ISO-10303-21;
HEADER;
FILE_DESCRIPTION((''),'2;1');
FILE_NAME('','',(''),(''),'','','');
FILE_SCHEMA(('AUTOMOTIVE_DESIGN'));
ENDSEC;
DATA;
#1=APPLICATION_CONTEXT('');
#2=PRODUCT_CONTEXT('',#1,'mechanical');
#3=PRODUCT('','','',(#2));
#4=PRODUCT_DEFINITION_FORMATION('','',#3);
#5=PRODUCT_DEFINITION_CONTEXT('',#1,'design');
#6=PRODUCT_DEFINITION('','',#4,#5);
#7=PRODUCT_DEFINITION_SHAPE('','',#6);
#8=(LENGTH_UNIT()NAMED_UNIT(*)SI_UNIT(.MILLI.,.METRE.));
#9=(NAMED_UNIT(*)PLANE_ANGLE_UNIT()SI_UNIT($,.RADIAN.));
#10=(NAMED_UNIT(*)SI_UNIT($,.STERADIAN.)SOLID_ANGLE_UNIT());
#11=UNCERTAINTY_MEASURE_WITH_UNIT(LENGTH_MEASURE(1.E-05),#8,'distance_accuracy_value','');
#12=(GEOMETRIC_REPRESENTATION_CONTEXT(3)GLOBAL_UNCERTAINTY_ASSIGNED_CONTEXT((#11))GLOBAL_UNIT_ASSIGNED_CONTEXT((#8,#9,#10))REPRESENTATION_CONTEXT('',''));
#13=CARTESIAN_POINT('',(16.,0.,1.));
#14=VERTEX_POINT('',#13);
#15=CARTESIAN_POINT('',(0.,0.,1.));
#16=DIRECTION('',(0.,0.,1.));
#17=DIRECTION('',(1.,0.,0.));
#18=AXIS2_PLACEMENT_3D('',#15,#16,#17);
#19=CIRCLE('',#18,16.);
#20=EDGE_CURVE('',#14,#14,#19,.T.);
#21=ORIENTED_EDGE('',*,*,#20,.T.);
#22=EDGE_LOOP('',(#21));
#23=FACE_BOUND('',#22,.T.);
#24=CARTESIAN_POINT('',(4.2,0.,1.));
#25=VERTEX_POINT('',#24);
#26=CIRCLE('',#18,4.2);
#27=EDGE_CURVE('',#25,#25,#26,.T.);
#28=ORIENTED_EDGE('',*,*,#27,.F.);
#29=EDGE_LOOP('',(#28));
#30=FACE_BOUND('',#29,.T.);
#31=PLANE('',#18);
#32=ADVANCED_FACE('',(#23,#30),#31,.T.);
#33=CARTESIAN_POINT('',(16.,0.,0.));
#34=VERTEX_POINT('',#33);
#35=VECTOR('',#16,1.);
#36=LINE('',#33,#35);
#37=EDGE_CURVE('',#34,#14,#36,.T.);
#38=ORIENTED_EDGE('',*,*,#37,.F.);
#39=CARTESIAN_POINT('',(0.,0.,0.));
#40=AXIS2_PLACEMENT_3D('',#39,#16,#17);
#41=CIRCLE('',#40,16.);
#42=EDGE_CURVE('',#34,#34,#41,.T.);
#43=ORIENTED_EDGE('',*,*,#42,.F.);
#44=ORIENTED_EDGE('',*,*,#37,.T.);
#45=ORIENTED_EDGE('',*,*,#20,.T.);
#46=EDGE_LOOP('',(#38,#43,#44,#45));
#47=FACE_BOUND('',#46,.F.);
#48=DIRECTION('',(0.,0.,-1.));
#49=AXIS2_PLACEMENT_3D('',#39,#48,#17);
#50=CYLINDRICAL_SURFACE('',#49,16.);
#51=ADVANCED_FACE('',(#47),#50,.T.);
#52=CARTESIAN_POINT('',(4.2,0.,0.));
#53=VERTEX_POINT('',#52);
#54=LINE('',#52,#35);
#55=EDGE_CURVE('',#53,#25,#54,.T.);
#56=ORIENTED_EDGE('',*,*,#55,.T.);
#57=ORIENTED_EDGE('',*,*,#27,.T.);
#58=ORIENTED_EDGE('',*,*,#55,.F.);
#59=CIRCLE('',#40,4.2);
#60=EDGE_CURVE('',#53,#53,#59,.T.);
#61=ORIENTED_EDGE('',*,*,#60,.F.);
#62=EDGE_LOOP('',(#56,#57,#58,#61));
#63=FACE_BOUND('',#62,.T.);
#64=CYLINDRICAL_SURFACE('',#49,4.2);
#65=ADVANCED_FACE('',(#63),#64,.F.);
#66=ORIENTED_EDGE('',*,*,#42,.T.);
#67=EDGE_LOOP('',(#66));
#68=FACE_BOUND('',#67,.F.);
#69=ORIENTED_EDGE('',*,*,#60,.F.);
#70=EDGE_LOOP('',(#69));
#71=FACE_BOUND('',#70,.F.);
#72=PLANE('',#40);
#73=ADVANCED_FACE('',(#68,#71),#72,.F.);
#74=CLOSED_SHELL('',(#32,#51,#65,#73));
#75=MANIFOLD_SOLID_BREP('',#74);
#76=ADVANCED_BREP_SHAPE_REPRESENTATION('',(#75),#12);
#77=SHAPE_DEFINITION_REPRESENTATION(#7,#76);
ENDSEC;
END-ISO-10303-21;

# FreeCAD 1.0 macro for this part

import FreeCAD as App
import Part
import Sketcher
Q = App.Units.Quantity

doc = App.newDocument("Part")
params = doc.addObject("Spreadsheet::Sheet", "Params")
for row, (alias, value) in enumerate([
    ("sketch1_diameter", "32 mm"),
    ("sketch1_diameter2", "8.4 mm"),
    ("pad1_length", "1 mm"),
], start=1):
    params.set(f"A{row}", alias)
    params.set(f"B{row}", "=" + value)
    params.setAlias(f"B{row}", alias)

body = doc.addObject("PartDesign::Body", "Body")

sketch1 = doc.addObject("Sketcher::SketchObject", "Sketch")
body.addObject(sketch1)
sketch1.AttachmentSupport = (doc.XY_Plane, [""])
sketch1.MapMode = "FlatFace"
sketch1.addGeometry([
    Part.Circle(App.Vector(0, 0, 0), App.Vector(0, 0, 1), 16),
    Part.Circle(App.Vector(0, 0, 0), App.Vector(0, 0, 1), 4.2),
], False)
sketch1.addConstraint([
    Sketcher.Constraint("Coincident", 0, 3, -1, 1),
    Sketcher.Constraint("Coincident", 1, 3, -1, 1),
    Sketcher.Constraint("Diameter", 0, Q("32 mm")),
    Sketcher.Constraint("Diameter", 1, Q("8.4 mm")),
])
sketch1.setExpression("Constraints[2]", "Params.sketch1_diameter")
sketch1.setExpression("Constraints[3]", "Params.sketch1_diameter2")
pad1 = doc.addObject("PartDesign::Pad", "Pad")
body.addObject(pad1)
pad1.Profile = sketch1
pad1.setExpression("Length", "Params.pad1_length")

doc.recompute()
